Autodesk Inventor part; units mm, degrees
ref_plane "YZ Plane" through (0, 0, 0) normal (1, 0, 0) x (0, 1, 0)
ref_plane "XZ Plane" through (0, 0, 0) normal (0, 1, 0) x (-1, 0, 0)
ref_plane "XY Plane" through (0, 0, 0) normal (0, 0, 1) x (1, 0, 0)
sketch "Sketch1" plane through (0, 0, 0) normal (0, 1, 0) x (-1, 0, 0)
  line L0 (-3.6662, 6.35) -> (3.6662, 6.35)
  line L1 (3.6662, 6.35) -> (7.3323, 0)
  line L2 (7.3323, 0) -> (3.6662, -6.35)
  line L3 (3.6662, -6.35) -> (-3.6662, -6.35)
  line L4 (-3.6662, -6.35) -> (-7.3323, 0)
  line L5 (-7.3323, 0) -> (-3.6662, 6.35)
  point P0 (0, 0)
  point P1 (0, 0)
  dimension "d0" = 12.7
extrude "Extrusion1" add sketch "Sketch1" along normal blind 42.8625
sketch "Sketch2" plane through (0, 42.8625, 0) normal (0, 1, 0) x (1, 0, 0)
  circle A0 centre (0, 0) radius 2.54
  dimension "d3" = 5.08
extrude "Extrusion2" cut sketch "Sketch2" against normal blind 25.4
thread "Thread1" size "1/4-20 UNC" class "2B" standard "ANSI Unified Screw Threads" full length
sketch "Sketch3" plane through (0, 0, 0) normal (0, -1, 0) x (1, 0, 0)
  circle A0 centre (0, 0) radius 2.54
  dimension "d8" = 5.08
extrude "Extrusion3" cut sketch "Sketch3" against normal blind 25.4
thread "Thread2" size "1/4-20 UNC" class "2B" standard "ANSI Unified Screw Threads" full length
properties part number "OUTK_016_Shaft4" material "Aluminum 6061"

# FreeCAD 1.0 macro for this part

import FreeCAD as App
import Part
import Sketcher
Q = App.Units.Quantity


def add_polygon(sketch, points):
    """Adds a closed chain of lines whose ends are joined by coincident constraints."""
    first, n = sketch.GeometryCount, len(points)
    for a, b in zip(points, points[1:] + points[:1]):
        sketch.addGeometry(Part.LineSegment(App.Vector(*a, 0), App.Vector(*b, 0)), False)
    for i in range(n):
        sketch.addConstraint(Sketcher.Constraint("Coincident", first + i, 2, first + (i + 1) % n, 1))

doc = App.newDocument("Part")
body = doc.addObject("PartDesign::Body", "Body")

sketch1 = body.newObject("Sketcher::SketchObject", "Sketch")
sketch1.AttachmentSupport = (doc.getObject("XZ_Plane"), [""])
sketch1.MapMode = "FlatFace"
add_polygon(sketch1, [(-4, 6), (4, 6), (7, 0), (4, -6), (-4, -6), (-7, 0)])
sketch1.addConstraint([
    Sketcher.Constraint("Horizontal", 0),
    Sketcher.Constraint("Horizontal", 3),
    Sketcher.Constraint("Symmetric", 0, 2, 3, 2, -1, 1),
    Sketcher.Constraint("Symmetric", 1, 2, 4, 2, -1, 1),
    Sketcher.Constraint("PointOnObject", 1, 2, -1),
    Sketcher.Constraint("Parallel", 2, 5),
    Sketcher.Constraint("Vertical", 0, 2, 2, 2),
    Sketcher.Constraint("DistanceY", 2, 2, 0, 2, Q("0.5 in")),
    Sketcher.Constraint("Angle", 1, Q("-60.0005 deg")),
    Sketcher.Constraint("DistanceX", 3, 2, 1, 2, Q("0.433 in")),
])
pad1 = body.newObject("PartDesign::Pad", "Pad")
pad1.Profile = sketch1
pad1.Length = Q("1.6875 in")
pad1.Reversed = True

sketch2 = body.newObject("Sketcher::SketchObject", "Sketch001")
sketch2.AttachmentSupport = (doc.getObject("XZ_Plane"), [""])
sketch2.MapMode = "FlatFace"
sketch2.AttachmentOffset = App.Placement(App.Vector(0, 0, -1.6875 * 25.4), App.Rotation())
sketch2.addGeometry(Part.Circle(App.Vector(0, 0, 0), App.Vector(0, 0, 1), 2.5), False)
sketch2.addConstraint([
    Sketcher.Constraint("Coincident", 0, 3, -1, 1),
    Sketcher.Constraint("Diameter", 0, Q("0.2 in")),
])
pocket1 = body.newObject("PartDesign::Pocket", "Pocket")
pocket1.Profile = sketch2
pocket1.Length = Q("1 in")
pocket1.Reversed = True

sketch3 = body.newObject("Sketcher::SketchObject", "Sketch002")
sketch3.AttachmentSupport = (doc.getObject("XZ_Plane"), [""])
sketch3.MapMode = "FlatFace"
sketch3.addGeometry(Part.Circle(App.Vector(0, 0, 0), App.Vector(0, 0, 1), 2.5), False)
sketch3.addConstraint([
    Sketcher.Constraint("Coincident", 0, 3, -1, 1),
    Sketcher.Constraint("Diameter", 0, Q("0.2 in")),
])
pocket2 = body.newObject("PartDesign::Pocket", "Pocket001")
pocket2.Profile = sketch3
pocket2.Length = Q("1 in")

doc.recompute()
